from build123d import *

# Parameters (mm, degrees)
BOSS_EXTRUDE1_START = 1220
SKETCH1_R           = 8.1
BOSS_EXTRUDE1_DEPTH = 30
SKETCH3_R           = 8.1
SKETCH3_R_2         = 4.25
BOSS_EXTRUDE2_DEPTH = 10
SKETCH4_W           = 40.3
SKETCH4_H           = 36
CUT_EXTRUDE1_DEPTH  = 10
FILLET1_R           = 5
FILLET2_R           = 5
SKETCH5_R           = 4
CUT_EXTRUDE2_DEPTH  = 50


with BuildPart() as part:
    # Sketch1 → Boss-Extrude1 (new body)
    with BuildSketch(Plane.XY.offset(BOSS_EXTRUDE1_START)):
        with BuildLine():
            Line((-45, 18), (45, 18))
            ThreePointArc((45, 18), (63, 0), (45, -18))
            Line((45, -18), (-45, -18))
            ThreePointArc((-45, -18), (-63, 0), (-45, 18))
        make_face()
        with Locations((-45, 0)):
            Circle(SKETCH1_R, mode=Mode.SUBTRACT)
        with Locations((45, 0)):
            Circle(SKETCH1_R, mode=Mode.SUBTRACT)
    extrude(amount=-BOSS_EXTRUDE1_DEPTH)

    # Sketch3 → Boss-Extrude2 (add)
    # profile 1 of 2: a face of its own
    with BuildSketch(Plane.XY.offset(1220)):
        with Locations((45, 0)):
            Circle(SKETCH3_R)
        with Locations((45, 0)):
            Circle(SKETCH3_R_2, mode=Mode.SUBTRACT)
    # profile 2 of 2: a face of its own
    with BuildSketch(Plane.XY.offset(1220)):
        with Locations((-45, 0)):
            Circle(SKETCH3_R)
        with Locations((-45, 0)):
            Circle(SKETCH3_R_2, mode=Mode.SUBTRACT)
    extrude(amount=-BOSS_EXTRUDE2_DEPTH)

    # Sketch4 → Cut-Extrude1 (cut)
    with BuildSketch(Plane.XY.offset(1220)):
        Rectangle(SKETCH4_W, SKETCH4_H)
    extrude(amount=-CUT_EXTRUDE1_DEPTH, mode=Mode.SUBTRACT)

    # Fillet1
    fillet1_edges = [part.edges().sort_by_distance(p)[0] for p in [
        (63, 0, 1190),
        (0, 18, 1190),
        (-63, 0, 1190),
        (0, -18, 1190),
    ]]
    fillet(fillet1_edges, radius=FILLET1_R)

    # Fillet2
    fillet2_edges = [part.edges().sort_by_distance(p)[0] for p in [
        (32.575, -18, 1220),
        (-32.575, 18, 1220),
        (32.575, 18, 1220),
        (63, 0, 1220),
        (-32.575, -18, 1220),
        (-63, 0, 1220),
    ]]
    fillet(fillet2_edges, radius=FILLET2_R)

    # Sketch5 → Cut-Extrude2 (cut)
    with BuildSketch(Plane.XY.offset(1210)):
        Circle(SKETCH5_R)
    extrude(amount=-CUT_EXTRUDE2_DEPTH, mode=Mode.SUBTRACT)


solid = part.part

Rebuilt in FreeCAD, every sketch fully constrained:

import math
import FreeCAD as App
import Part
import Sketcher


def edges_at(feature, points):
    """Names of the edges that pass closest to the given points."""
    edges = feature.Shape.Edges
    near = lambda p: min(range(len(edges)), key=lambda i: edges[i].distToShape(Part.Vertex(*p))[0])
    return sorted({f"Edge{near(p) + 1}" for p in points})


def add_polygon(sketch, points):
    """Adds a closed chain of lines whose ends are joined by coincident constraints."""
    first, n = sketch.GeometryCount, len(points)
    for a, b in zip(points, points[1:] + points[:1]):
        sketch.addGeometry(Part.LineSegment(App.Vector(*a, 0), App.Vector(*b, 0)), False)
    for i in range(n):
        sketch.addConstraint(Sketcher.Constraint("Coincident", first + i, 2, first + (i + 1) % n, 1))

doc = App.newDocument("Part")
params = doc.addObject("Spreadsheet::Sheet", "Params")
for row, (alias, value) in enumerate([
    ("sketch1_radius", "18 mm"),
    ("sketch1_diameter", "16.2 mm"),
    ("sketch1_width", "90 mm"),
    ("pad1_length", "30 mm"),
    ("sketch2_diameter", "16.2 mm"),
    ("sketch2_diameter2", "8.5 mm"),
    ("pad2_length", "10 mm"),
    ("sketch3_height", "36 mm"),
    ("sketch3_width", "40.3 mm"),
    ("pocket1_length", "10 mm"),
    ("fillet_radius", "5 mm"),
    ("fillet2_radius", "5 mm"),
    ("sketch4_diameter", "8 mm"),
    ("pocket2_length", "50 mm"),
], start=1):
    params.set(f"A{row}", alias)
    params.set(f"B{row}", "=" + value)
    params.setAlias(f"B{row}", alias)

body = doc.addObject("PartDesign::Body", "Body")

sketch1 = doc.addObject("Sketcher::SketchObject", "Sketch")
body.addObject(sketch1)
sketch1.AttachmentSupport = (doc.XY_Plane, [""])
sketch1.MapMode = "FlatFace"
sketch1.AttachmentOffset = App.Placement(App.Vector(0, 0, 1220), App.Rotation())
sketch1.addGeometry([
    Part.LineSegment(App.Vector(45, 18, 0), App.Vector(-45, 18, 0)),
    Part.ArcOfCircle(Part.Circle(App.Vector(-45, 0, 0), App.Vector(0, 0, 1), 18), math.radians(90), math.radians(270)),
    Part.LineSegment(App.Vector(-45, -18, 0), App.Vector(45, -18, 0)),
    Part.ArcOfCircle(Part.Circle(App.Vector(45, 0, 0), App.Vector(0, 0, 1), 18), math.radians(-90), math.radians(90)),
    Part.Circle(App.Vector(45, 0, 0), App.Vector(0, 0, 1), 8),
    Part.Circle(App.Vector(-45, 0, 0), App.Vector(0, 0, 1), 8),
], False)
sketch1.addConstraint([
    Sketcher.Constraint("Tangent", 0, 2, 1, 1),
    Sketcher.Constraint("Tangent", 1, 2, 2, 1),
    Sketcher.Constraint("Tangent", 2, 2, 3, 1),
    Sketcher.Constraint("Tangent", 3, 2, 0, 1),
    Sketcher.Constraint("Horizontal", 0),
    Sketcher.Constraint("Horizontal", 2),
    Sketcher.Constraint("Coincident", 4, 3, 3, 3),
    Sketcher.Constraint("Coincident", 5, 3, 1, 3),
    Sketcher.Constraint("Equal", 4, 5),
    Sketcher.Constraint("Symmetric", 1, 3, 3, 3, -1, 1),
    Sketcher.Constraint("Radius", 1, 18.0),
    Sketcher.Constraint("Diameter", 4, 16.2),
    Sketcher.Constraint("DistanceX", 0, 2, 0, 1, 90.0),
])
sketch1.setExpression("Constraints[10]", "Params.sketch1_radius")
sketch1.setExpression("Constraints[11]", "Params.sketch1_diameter")
sketch1.setExpression("Constraints[12]", "Params.sketch1_width")
pad1 = doc.addObject("PartDesign::Pad", "Pad")
body.addObject(pad1)
pad1.Profile = sketch1
pad1.setExpression("Length", "Params.pad1_length")
pad1.Reversed = True

sketch2 = doc.addObject("Sketcher::SketchObject", "Sketch001")
body.addObject(sketch2)
sketch2.AttachmentSupport = (doc.XY_Plane, [""])
sketch2.MapMode = "FlatFace"
sketch2.AttachmentOffset = App.Placement(App.Vector(0, 0, 1220), App.Rotation())
sketch2.addGeometry([
    Part.Circle(App.Vector(45, 0, 0), App.Vector(0, 0, 1), 8.1),
    Part.Circle(App.Vector(45, 0, 0), App.Vector(0, 0, 1), 4.2),
    Part.Circle(App.Vector(-45, 0, 0), App.Vector(0, 0, 1), 8.1),
    Part.Circle(App.Vector(-45, 0, 0), App.Vector(0, 0, 1), 4.2),
], False)
sketch2.addConstraint([
    Sketcher.Constraint("Coincident", 1, 3, 0, 3),
    Sketcher.Constraint("Coincident", 3, 3, 2, 3),
    Sketcher.Constraint("Equal", 0, 2),
    Sketcher.Constraint("Equal", 1, 3),
    Sketcher.Constraint("Symmetric", 0, 3, 2, 3, -1, 1),
    Sketcher.Constraint("PointOnObject", 0, 3, -1),
    Sketcher.Constraint("Diameter", 0, 16.2),
    Sketcher.Constraint("Diameter", 1, 8.5),
    Sketcher.Constraint("DistanceX", -1, 1, 0, 3, 45.0),
])
sketch2.setExpression("Constraints[6]", "Params.sketch2_diameter")
sketch2.setExpression("Constraints[7]", "Params.sketch2_diameter2")
pad2 = doc.addObject("PartDesign::Pad", "Pad001")
body.addObject(pad2)
pad2.Profile = sketch2
pad2.setExpression("Length", "Params.pad2_length")
pad2.Reversed = True

sketch3 = doc.addObject("Sketcher::SketchObject", "Sketch002")
body.addObject(sketch3)
sketch3.AttachmentSupport = (doc.XY_Plane, [""])
sketch3.MapMode = "FlatFace"
sketch3.AttachmentOffset = App.Placement(App.Vector(0, 0, 1220), App.Rotation())
add_polygon(sketch3, [(-20, 18), (-20, -18), (20, -18), (20, 18)])
sketch3.addConstraint([
    Sketcher.Constraint("Vertical", 0),
    Sketcher.Constraint("Horizontal", 1),
    Sketcher.Constraint("Vertical", 2),
    Sketcher.Constraint("Horizontal", 3),
    Sketcher.Constraint("Symmetric", 0, 2, 2, 2, -1, 1),
    Sketcher.Constraint("DistanceY", 0, 2, 0, 1, 36.0),
    Sketcher.Constraint("DistanceX", 1, 1, 1, 2, 40.3),
])
sketch3.setExpression("Constraints[9]", "Params.sketch3_height")
sketch3.setExpression("Constraints[10]", "Params.sketch3_width")
pocket1 = doc.addObject("PartDesign::Pocket", "Pocket")
body.addObject(pocket1)
pocket1.Profile = sketch3
pocket1.setExpression("Length", "Params.pocket1_length")
doc.recompute()

fillet = doc.addObject("PartDesign::Fillet", "Fillet")
body.addObject(fillet)
fillet.Base = (pocket1, edges_at(pocket1, [
    (63, 0, 1190),
    (0, 18, 1190),
    (-63, 0, 1190),
    (0, -18, 1190),
]))
fillet.setExpression("Radius", "Params.fillet_radius")
doc.recompute()

fillet2 = doc.addObject("PartDesign::Fillet", "Fillet001")
body.addObject(fillet2)
fillet2.Base = (fillet, edges_at(fillet, [
    (32.575, -18, 1220),
    (-32.575, 18, 1220),
    (32.575, 18, 1220),
    (63, 0, 1220),
    (-32.575, -18, 1220),
    (-63, 0, 1220),
]))
fillet2.setExpression("Radius", "Params.fillet2_radius")

sketch4 = doc.addObject("Sketcher::SketchObject", "Sketch003")
body.addObject(sketch4)
sketch4.AttachmentSupport = (doc.XY_Plane, [""])
sketch4.MapMode = "FlatFace"
sketch4.AttachmentOffset = App.Placement(App.Vector(0, 0, 1210), App.Rotation())
sketch4.addGeometry(Part.Circle(App.Vector(0, 0, 0), App.Vector(0, 0, 1), 4), False)
sketch4.addConstraint([
    Sketcher.Constraint("Coincident", 0, 3, -1, 1),
    Sketcher.Constraint("Diameter", 0, 8.0),
])
sketch4.setExpression("Constraints[1]", "Params.sketch4_diameter")
pocket2 = doc.addObject("PartDesign::Pocket", "Pocket001")
body.addObject(pocket2)
pocket2.Profile = sketch4
pocket2.setExpression("Length", "Params.pocket2_length")

doc.recompute()
